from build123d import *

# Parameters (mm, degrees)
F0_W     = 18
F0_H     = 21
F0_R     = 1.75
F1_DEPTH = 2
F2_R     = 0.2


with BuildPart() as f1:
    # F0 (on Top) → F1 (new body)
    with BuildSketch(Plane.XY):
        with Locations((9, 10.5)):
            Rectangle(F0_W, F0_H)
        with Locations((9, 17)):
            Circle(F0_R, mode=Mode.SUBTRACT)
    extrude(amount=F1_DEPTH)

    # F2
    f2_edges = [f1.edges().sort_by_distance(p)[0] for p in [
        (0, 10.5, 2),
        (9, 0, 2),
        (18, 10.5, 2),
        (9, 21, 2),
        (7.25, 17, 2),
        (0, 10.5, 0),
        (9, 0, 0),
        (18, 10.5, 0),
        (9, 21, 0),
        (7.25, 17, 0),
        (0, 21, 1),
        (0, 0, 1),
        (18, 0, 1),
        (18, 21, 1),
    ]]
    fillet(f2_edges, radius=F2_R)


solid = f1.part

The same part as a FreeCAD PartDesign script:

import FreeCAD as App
import Part
import Sketcher

V = App.Vector
Q = App.Units.Quantity


def add_polygon(sketch, points):
    """Adds a closed chain of lines whose ends are joined by coincident constraints."""
    first, n = sketch.GeometryCount, len(points)
    for a, b in zip(points, points[1:] + points[:1]):
        sketch.addGeometry(Part.LineSegment(App.Vector(*a, 0), App.Vector(*b, 0)), False)
    for i in range(n):
        sketch.addConstraint(Sketcher.Constraint("Coincident", first + i, 2, first + (i + 1) % n, 1))

doc = App.newDocument("Part")
body = doc.addObject("PartDesign::Body", "Body")

# Sketch on XY plane
sketch1 = doc.addObject("Sketcher::SketchObject", "Sketch")
body.addObject(sketch1)
sketch1.AttachmentSupport = (doc.XY_Plane, [""])
sketch1.MapMode = "FlatFace"
add_polygon(sketch1, [(0, 21), (0, 0), (18, 0), (18, 21)])  # lines 0-3
sketch1.addGeometry(Part.Circle(V(9, 17, 0), V(0, 0, 1), 1.8), False)  # 4
sketch1.addConstraint([
    Sketcher.Constraint("Vertical", 0),
    Sketcher.Constraint("Horizontal", 1),
    Sketcher.Constraint("Vertical", 2),
    Sketcher.Constraint("Horizontal", 3),
    Sketcher.Constraint("Coincident", 0, 2, -1, 1),
    Sketcher.Constraint("Diameter", 4, Q("3.5 mm")),
    Sketcher.Constraint("DistanceX", 1, 1, 1, 2, Q("18 mm")),
    Sketcher.Constraint("DistanceY", 0, 2, 0, 1, Q("21 mm")),
    Sketcher.Constraint("DistanceX", -1, 1, 4, 3, Q("9 mm")),
    Sketcher.Constraint("DistanceY", -1, 1, 4, 3, Q("17 mm")),
])
pad1 = doc.addObject("PartDesign::Pad", "Pad")
body.addObject(pad1)
pad1.Profile = sketch1
pad1.Length = 2
doc.recompute()

fillet = doc.addObject("PartDesign::Fillet", "Fillet")
body.addObject(fillet)
fillet.Base = (pad1, ["Edge1"])
fillet.UseAllEdges = True
fillet.Radius = 0.2

doc.recompute()
